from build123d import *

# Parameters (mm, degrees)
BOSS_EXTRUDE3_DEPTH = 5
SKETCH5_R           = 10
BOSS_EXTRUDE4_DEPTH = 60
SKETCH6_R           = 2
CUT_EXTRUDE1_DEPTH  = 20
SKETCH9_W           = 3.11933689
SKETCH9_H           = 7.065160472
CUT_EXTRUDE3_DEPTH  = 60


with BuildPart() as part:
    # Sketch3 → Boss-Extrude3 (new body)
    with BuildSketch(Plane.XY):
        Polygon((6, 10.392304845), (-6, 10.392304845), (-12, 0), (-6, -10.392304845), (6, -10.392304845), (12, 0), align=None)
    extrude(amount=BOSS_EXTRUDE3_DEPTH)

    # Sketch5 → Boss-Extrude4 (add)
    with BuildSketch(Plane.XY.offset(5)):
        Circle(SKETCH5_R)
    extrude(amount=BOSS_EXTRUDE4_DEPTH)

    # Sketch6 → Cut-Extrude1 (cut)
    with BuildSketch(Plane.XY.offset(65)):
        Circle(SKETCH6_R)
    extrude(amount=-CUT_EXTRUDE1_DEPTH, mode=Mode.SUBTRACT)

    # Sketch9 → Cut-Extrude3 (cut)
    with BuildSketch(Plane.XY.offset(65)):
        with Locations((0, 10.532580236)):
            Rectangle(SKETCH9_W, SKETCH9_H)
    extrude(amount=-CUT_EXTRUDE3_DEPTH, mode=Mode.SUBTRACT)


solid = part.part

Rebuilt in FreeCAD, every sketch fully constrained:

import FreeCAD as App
import Part
import Sketcher
from FreeCAD import Vector
Q = App.Units.Quantity

doc = App.newDocument("Part")
body = doc.addObject("PartDesign::Body", "Body")

sketch1 = body.newObject("Sketcher::SketchObject", "Sketch")
sketch1.AttachmentSupport = (doc.getObject("XY_Plane"), [""])
sketch1.MapMode = "FlatFace"
sketch1.addGeometry([
    Part.LineSegment(Vector(6, 10, 0), Vector(-6, 10, 0)),
    Part.LineSegment(Vector(-6, 10, 0), Vector(-12, 0, 0)),
    Part.LineSegment(Vector(-12, 0, 0), Vector(-6, -10, 0)),
    Part.LineSegment(Vector(-6, -10, 0), Vector(6, -10, 0)),
    Part.LineSegment(Vector(6, -10, 0), Vector(12, 0, 0)),
    Part.LineSegment(Vector(12, 0, 0), Vector(6, 10, 0)),
], False)
sketch1.addConstraint([
    Sketcher.Constraint("Coincident", 0, 2, 1, 1),
    Sketcher.Constraint("Coincident", 1, 2, 2, 1),
    Sketcher.Constraint("Coincident", 2, 2, 3, 1),
    Sketcher.Constraint("Coincident", 3, 2, 4, 1),
    Sketcher.Constraint("Coincident", 4, 2, 5, 1),
    Sketcher.Constraint("Coincident", 5, 2, 0, 1),
    Sketcher.Constraint("Horizontal", 0),
    Sketcher.Constraint("Horizontal", 3),
    Sketcher.Constraint("Symmetric", 0, 2, 3, 2, -1, 1),
    Sketcher.Constraint("Symmetric", 1, 2, 4, 2, -1, 1),
    Sketcher.Constraint("PointOnObject", 1, 2, -1),
    Sketcher.Constraint("Parallel", 2, 5),
    Sketcher.Constraint("Vertical", 0, 2, 2, 2),
    Sketcher.Constraint("DistanceX", 0, 2, 0, 1, Q("12 mm")),
    Sketcher.Constraint("Angle", 1, Q("-120 deg")),
    Sketcher.Constraint("Distance", 1, Q("12 mm")),
])
pad1 = body.newObject("PartDesign::Pad", "Pad")
pad1.Profile = sketch1
pad1.Length = 5

sketch2 = body.newObject("Sketcher::SketchObject", "Sketch001")
sketch2.AttachmentSupport = (doc.getObject("XY_Plane"), [""])
sketch2.MapMode = "FlatFace"
sketch2.AttachmentOffset = App.Placement(Vector(0, 0, 5), App.Rotation())
sketch2.addGeometry(Part.Circle(Vector(0, 0, 0), Vector(0, 0, 1), 10), False)
sketch2.addConstraint([
    Sketcher.Constraint("Coincident", 0, 3, -1, 1),
    Sketcher.Constraint("Diameter", 0, Q("20 mm")),
])
pad2 = body.newObject("PartDesign::Pad", "Pad001")
pad2.Profile = sketch2
pad2.Length = 60

sketch3 = body.newObject("Sketcher::SketchObject", "Sketch002")
sketch3.AttachmentSupport = (doc.getObject("XY_Plane"), [""])
sketch3.MapMode = "FlatFace"
sketch3.AttachmentOffset = App.Placement(Vector(0, 0, 65), App.Rotation())
sketch3.addGeometry(Part.Circle(Vector(0, 0, 0), Vector(0, 0, 1), 2), False)
sketch3.addConstraint([
    Sketcher.Constraint("Coincident", 0, 3, -1, 1),
    Sketcher.Constraint("Diameter", 0, Q("4 mm")),
])
pocket1 = body.newObject("PartDesign::Pocket", "Pocket")
pocket1.Profile = sketch3
pocket1.Length = 20

sketch4 = body.newObject("Sketcher::SketchObject", "Sketch003")
sketch4.AttachmentSupport = (doc.getObject("XY_Plane"), [""])
sketch4.MapMode = "FlatFace"
sketch4.AttachmentOffset = App.Placement(Vector(0, 0, 65), App.Rotation())
sketch4.addGeometry([
    Part.LineSegment(Vector(-1.6, 14.1, 0), Vector(-1.6, 7, 0)),
    Part.LineSegment(Vector(-1.6, 7, 0), Vector(1.6, 7, 0)),
    Part.LineSegment(Vector(1.6, 7, 0), Vector(1.6, 14.1, 0)),
    Part.LineSegment(Vector(1.6, 14.1, 0), Vector(-1.6, 14.1, 0)),
], False)
sketch4.addConstraint([
    Sketcher.Constraint("Coincident", 0, 2, 1, 1),
    Sketcher.Constraint("Coincident", 1, 2, 2, 1),
    Sketcher.Constraint("Coincident", 2, 2, 3, 1),
    Sketcher.Constraint("Coincident", 3, 2, 0, 1),
    Sketcher.Constraint("Vertical", 0),
    Sketcher.Constraint("Horizontal", 1),
    Sketcher.Constraint("Vertical", 2),
    Sketcher.Constraint("Horizontal", 3),
    Sketcher.Constraint("DistanceY", -1, 1, 0, 2, Q("7 mm")),
    Sketcher.Constraint("DistanceY", 0, 2, 0, 1, Q("7.06516 mm")),
    Sketcher.Constraint("DistanceX", 1, 1, 1, 2, Q("3.119337 mm")),
    Sketcher.Constraint("DistanceX", 0, 2, -1, 1, Q("1.559668 mm")),
])
pocket2 = body.newObject("PartDesign::Pocket", "Pocket001")
pocket2.Profile = sketch4
pocket2.Length = 60

doc.recompute()
